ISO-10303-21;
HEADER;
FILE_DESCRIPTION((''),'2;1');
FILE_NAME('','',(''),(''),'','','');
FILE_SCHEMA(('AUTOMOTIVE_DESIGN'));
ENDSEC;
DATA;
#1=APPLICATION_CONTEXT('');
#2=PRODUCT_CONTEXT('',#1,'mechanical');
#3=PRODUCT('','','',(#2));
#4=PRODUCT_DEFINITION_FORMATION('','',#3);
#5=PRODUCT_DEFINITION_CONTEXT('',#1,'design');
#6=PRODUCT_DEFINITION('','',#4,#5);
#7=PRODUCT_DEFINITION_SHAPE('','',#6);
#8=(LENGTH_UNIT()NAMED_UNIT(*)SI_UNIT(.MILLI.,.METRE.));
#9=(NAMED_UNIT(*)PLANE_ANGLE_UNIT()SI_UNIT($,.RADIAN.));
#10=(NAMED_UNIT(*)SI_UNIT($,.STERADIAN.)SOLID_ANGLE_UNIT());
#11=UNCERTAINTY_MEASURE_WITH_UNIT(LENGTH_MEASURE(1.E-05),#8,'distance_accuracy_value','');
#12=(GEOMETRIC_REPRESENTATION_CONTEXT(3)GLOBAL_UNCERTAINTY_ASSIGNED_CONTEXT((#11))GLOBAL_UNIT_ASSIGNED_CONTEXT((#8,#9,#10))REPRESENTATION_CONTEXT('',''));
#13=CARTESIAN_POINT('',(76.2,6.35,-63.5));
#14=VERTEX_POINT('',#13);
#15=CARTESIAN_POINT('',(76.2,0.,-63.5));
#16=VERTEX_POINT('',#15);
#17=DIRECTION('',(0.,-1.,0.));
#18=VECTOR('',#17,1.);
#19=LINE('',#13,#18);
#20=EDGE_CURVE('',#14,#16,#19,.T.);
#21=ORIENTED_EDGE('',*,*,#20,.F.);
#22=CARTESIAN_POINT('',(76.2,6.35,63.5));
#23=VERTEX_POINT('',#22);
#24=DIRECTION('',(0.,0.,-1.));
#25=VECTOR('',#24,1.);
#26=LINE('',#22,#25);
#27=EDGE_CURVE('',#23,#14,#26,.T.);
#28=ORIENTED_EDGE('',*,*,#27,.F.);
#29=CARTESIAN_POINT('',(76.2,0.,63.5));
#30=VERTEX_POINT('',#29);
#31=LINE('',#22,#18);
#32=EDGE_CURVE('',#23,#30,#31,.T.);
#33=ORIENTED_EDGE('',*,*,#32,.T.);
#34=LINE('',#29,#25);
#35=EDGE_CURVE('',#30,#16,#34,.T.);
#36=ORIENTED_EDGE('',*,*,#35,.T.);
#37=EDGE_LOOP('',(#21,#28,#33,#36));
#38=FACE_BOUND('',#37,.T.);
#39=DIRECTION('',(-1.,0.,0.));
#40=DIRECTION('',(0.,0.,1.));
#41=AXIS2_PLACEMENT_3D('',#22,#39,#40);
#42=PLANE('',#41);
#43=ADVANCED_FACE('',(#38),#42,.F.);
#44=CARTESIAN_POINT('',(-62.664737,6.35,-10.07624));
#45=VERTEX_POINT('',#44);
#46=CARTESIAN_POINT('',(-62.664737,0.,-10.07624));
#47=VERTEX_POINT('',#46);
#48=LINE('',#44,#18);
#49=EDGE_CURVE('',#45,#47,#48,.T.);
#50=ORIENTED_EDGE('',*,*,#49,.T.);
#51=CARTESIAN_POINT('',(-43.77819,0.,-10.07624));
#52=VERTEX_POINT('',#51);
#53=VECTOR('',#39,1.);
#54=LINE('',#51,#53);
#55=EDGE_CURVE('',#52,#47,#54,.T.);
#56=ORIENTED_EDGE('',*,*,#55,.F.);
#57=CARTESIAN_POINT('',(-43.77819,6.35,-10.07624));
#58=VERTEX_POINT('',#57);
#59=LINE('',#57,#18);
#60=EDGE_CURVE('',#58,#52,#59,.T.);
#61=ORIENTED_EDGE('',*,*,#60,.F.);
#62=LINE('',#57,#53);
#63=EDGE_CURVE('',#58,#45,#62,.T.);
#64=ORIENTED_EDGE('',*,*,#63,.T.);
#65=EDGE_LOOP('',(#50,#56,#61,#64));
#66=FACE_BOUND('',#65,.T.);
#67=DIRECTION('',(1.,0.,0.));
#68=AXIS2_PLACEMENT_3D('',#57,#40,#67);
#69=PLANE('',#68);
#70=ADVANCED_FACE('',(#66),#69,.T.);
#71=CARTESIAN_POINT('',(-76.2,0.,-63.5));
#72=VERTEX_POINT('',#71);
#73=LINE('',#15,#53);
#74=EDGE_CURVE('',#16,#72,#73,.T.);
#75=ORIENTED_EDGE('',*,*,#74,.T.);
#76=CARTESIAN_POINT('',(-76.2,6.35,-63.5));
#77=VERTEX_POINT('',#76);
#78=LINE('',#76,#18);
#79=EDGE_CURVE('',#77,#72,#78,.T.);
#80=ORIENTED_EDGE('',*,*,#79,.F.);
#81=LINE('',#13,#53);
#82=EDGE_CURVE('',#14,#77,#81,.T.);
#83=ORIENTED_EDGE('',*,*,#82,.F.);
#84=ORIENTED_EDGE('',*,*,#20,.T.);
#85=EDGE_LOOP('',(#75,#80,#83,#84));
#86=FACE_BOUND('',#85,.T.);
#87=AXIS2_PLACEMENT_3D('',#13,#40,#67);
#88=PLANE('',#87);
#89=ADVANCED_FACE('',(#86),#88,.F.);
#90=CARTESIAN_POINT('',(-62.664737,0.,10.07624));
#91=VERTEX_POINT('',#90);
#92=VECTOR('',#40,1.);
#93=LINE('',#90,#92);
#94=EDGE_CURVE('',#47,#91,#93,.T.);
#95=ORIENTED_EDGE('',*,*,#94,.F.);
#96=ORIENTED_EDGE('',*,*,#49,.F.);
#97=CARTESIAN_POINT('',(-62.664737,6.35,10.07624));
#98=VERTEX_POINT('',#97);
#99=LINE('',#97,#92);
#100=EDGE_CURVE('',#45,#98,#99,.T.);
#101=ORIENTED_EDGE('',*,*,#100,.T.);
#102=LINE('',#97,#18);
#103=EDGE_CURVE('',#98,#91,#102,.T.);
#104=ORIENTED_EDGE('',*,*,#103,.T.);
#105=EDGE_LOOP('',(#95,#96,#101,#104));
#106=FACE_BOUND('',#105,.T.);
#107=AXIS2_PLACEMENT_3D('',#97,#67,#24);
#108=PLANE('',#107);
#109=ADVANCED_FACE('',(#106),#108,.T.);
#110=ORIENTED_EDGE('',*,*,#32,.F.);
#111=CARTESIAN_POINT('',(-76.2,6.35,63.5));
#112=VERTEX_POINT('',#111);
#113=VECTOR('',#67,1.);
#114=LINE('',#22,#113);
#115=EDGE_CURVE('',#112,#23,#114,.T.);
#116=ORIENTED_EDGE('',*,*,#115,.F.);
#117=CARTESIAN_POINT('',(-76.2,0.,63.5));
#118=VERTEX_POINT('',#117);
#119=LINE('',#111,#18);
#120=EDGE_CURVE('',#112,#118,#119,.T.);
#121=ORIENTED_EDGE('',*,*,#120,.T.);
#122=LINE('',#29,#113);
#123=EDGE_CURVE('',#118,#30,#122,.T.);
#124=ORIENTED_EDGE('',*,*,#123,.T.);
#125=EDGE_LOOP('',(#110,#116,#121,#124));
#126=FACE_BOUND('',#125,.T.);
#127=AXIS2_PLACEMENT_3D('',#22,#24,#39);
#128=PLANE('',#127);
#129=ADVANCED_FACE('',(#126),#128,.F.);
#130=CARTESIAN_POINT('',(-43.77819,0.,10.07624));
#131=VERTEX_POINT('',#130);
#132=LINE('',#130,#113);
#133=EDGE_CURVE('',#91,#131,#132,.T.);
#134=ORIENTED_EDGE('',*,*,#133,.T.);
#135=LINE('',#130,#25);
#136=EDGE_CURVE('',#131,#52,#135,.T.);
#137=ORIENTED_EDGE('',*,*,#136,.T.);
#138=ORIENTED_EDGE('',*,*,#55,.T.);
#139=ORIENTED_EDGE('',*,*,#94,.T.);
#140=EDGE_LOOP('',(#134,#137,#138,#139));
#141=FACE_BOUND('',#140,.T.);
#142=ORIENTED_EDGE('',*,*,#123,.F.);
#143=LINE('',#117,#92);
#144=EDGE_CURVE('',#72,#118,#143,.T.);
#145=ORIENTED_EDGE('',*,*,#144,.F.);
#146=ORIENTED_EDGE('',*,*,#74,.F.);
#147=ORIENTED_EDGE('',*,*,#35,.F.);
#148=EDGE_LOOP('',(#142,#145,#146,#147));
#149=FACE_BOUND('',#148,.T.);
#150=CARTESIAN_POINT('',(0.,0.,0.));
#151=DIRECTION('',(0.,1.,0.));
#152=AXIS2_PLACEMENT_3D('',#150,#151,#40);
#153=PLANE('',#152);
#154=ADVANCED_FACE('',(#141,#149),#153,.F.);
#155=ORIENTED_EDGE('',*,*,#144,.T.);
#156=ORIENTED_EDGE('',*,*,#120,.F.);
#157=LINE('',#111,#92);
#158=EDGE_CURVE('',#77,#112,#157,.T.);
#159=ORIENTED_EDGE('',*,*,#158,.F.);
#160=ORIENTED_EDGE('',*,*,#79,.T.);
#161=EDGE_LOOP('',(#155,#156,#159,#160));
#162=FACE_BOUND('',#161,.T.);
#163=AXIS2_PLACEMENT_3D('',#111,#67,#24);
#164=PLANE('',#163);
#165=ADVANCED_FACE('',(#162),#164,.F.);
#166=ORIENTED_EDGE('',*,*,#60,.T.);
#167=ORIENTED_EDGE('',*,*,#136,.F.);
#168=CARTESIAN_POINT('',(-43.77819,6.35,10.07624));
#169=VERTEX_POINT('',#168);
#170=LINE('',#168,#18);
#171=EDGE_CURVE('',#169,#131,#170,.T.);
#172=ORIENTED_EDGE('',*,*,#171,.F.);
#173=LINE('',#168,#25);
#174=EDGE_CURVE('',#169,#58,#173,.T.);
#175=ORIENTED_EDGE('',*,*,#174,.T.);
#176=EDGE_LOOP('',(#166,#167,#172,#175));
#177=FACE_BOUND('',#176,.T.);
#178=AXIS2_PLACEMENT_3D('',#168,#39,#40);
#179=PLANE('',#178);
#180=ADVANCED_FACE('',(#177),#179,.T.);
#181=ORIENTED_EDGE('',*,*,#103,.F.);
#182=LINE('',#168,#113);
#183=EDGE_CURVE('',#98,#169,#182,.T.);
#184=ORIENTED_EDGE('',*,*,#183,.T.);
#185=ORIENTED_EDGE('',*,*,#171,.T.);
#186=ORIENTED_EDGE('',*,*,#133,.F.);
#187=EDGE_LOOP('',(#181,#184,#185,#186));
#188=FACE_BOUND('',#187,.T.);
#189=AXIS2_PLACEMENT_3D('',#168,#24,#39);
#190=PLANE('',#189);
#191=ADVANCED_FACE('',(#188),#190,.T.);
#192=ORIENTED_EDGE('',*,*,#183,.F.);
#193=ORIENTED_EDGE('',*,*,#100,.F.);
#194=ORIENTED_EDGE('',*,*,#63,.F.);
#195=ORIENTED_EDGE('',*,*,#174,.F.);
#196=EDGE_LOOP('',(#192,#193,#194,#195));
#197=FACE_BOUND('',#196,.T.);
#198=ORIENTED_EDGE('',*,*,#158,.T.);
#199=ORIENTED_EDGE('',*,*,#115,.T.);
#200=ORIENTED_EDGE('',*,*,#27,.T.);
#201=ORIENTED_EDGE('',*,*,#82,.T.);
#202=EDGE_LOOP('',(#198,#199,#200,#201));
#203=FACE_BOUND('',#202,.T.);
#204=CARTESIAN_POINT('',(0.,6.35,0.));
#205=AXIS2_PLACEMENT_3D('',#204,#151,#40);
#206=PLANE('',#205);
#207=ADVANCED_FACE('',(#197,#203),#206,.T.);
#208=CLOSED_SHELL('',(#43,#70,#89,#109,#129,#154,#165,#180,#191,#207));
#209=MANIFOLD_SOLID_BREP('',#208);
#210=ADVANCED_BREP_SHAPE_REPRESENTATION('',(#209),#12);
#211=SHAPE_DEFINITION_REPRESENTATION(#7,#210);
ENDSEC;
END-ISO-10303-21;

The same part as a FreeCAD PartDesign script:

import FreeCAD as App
import Part
import Sketcher

V = App.Vector
Q = App.Units.Quantity


def add_polygon(sketch, points):
    """Adds a closed chain of lines whose ends are joined by coincident constraints."""
    first, n = sketch.GeometryCount, len(points)
    for a, b in zip(points, points[1:] + points[:1]):
        sketch.addGeometry(Part.LineSegment(App.Vector(*a, 0), App.Vector(*b, 0)), False)
    for i in range(n):
        sketch.addConstraint(Sketcher.Constraint("Coincident", first + i, 2, first + (i + 1) % n, 1))

doc = App.newDocument("Part")
body = doc.addObject("PartDesign::Body", "Body")

sketch1 = body.newObject("Sketcher::SketchObject", "Sketch")
sketch1.AttachmentSupport = (doc.getObject("XZ_Plane"), [""])
sketch1.MapMode = "FlatFace"
add_polygon(sketch1, [(-76.2, -63.5), (-76.2, 63.5), (76.2, 63.5), (76.2, -63.5)])
add_polygon(sketch1, [(-43.77819, 10.07624), (-62.664737, 10.07624), (-62.664737, -10.07624), (-43.77819, -10.07624)])
sketch1.addConstraint(Sketcher.Constraint("Vertical", 0))
sketch1.addConstraint(Sketcher.Constraint("Horizontal", 1))
sketch1.addConstraint(Sketcher.Constraint("Vertical", 2))
sketch1.addConstraint(Sketcher.Constraint("Horizontal", 3))
sketch1.addConstraint(Sketcher.Constraint("Horizontal", 4))
sketch1.addConstraint(Sketcher.Constraint("Vertical", 5))
sketch1.addConstraint(Sketcher.Constraint("Horizontal", 6))
sketch1.addConstraint(Sketcher.Constraint("Vertical", 7))
sketch1.addConstraint(Sketcher.Constraint("Symmetric", 0, 2, 2, 2, -1, 1))
sketch1.addConstraint(Sketcher.Constraint("DistanceX", 1, 1, 1, 2, Q("6 in")))
sketch1.addConstraint(Sketcher.Constraint("DistanceY", 0, 1, 0, 2, Q("5 in")))
sketch1.addConstraint(Sketcher.Constraint("DistanceY", 5, 2, 5, 1, 20.152481))
sketch1.addConstraint(Sketcher.Constraint("DistanceX", 4, 2, 4, 1, 18.886547))
sketch1.addConstraint(Sketcher.Constraint("DistanceY", -1, 1, 4, 2, 10.07624))
sketch1.addConstraint(Sketcher.Constraint("DistanceX", 6, 2, -1, 1, 43.77819))
pad1 = body.newObject("PartDesign::Pad", "Pad")
pad1.Profile = sketch1
pad1.Length = Q("0.25 in")
pad1.Reversed = True

doc.recompute()
